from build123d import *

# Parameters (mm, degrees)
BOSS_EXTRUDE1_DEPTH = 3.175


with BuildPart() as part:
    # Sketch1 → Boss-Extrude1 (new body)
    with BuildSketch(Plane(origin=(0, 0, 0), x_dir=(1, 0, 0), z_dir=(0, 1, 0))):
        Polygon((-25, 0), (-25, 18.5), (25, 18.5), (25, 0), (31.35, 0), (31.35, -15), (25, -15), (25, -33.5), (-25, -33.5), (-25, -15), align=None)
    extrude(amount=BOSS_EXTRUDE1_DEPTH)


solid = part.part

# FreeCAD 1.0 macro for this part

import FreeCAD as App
import Part
import Sketcher

V = App.Vector
Q = App.Units.Quantity

doc = App.newDocument("Part")
params = doc.addObject("Spreadsheet::Sheet", "Params")
for row, (alias, value) in enumerate([
    ("sketch1_width", "50 mm"),
    ("sketch1_height", "52 mm"),
    ("sketch1_height2", "15 mm"),
    ("sketch1_width2", "6.35 mm"),
    ("pad1_length", "3.175 mm"),
], start=1):
    params.set(f"A{row}", alias)
    params.set(f"B{row}", "=" + value)
    params.setAlias(f"B{row}", alias)

body = doc.addObject("PartDesign::Body", "Body")

sketch1 = doc.addObject("Sketcher::SketchObject", "Sketch")
body.addObject(sketch1)
sketch1.AttachmentSupport = (doc.XZ_Plane, [""])
sketch1.MapMode = "FlatFace"
sketch1.addGeometry([
    Part.LineSegment(V(-25, -18, 0), V(-25, 34, 0)),
    Part.LineSegment(V(-25, 34, 0), V(25, 34, 0)),
    Part.LineSegment(V(25, 34, 0), V(25, 15, 0)),
    Part.LineSegment(V(25, 15, 0), V(31, 15, 0)),
    Part.LineSegment(V(31, 15, 0), V(31, 0, 0)),
    Part.LineSegment(V(31, 0, 0), V(25, 0, 0)),
    Part.LineSegment(V(25, 0, 0), V(25, -18, 0)),
    Part.LineSegment(V(25, -18, 0), V(-25, -18, 0)),
], False)
sketch1.addConstraint([
    Sketcher.Constraint("Coincident", 0, 2, 1, 1),
    Sketcher.Constraint("Coincident", 1, 2, 2, 1),
    Sketcher.Constraint("Coincident", 2, 2, 3, 1),
    Sketcher.Constraint("Coincident", 3, 2, 4, 1),
    Sketcher.Constraint("Coincident", 4, 2, 5, 1),
    Sketcher.Constraint("Coincident", 5, 2, 6, 1),
    Sketcher.Constraint("Coincident", 6, 2, 7, 1),
    Sketcher.Constraint("Coincident", 7, 2, 0, 1),
    Sketcher.Constraint("Vertical", 0),
    Sketcher.Constraint("Horizontal", 1),
    Sketcher.Constraint("Vertical", 2),
    Sketcher.Constraint("Horizontal", 3),
    Sketcher.Constraint("Vertical", 4),
    Sketcher.Constraint("Horizontal", 5),
    Sketcher.Constraint("Vertical", 6),
    Sketcher.Constraint("Horizontal", 7),
    Sketcher.Constraint("PointOnObject", 4, 2, -1),
    Sketcher.Constraint("Vertical", 2, 2, 5, 2),
    Sketcher.Constraint("Equal", 2, 6),
    Sketcher.Constraint("DistanceX", 1, 1, 1, 2, Q("50 mm")),
    Sketcher.Constraint("DistanceY", 0, 1, 0, 2, Q("52 mm")),
    Sketcher.Constraint("DistanceY", 4, 2, 4, 1, Q("15 mm")),
    Sketcher.Constraint("DistanceX", 0, 2, -1, 1, Q("25 mm")),
    Sketcher.Constraint("DistanceX", 3, 1, 3, 2, Q("6.35 mm")),
])
sketch1.setExpression("Constraints[19]", "Params.sketch1_width")
sketch1.setExpression("Constraints[20]", "Params.sketch1_height")
sketch1.setExpression("Constraints[21]", "Params.sketch1_height2")
sketch1.setExpression("Constraints[23]", "Params.sketch1_width2")
pad1 = doc.addObject("PartDesign::Pad", "Pad")
body.addObject(pad1)
pad1.Profile = sketch1
pad1.setExpression("Length", "Params.pad1_length")
pad1.Reversed = True

doc.recompute()
